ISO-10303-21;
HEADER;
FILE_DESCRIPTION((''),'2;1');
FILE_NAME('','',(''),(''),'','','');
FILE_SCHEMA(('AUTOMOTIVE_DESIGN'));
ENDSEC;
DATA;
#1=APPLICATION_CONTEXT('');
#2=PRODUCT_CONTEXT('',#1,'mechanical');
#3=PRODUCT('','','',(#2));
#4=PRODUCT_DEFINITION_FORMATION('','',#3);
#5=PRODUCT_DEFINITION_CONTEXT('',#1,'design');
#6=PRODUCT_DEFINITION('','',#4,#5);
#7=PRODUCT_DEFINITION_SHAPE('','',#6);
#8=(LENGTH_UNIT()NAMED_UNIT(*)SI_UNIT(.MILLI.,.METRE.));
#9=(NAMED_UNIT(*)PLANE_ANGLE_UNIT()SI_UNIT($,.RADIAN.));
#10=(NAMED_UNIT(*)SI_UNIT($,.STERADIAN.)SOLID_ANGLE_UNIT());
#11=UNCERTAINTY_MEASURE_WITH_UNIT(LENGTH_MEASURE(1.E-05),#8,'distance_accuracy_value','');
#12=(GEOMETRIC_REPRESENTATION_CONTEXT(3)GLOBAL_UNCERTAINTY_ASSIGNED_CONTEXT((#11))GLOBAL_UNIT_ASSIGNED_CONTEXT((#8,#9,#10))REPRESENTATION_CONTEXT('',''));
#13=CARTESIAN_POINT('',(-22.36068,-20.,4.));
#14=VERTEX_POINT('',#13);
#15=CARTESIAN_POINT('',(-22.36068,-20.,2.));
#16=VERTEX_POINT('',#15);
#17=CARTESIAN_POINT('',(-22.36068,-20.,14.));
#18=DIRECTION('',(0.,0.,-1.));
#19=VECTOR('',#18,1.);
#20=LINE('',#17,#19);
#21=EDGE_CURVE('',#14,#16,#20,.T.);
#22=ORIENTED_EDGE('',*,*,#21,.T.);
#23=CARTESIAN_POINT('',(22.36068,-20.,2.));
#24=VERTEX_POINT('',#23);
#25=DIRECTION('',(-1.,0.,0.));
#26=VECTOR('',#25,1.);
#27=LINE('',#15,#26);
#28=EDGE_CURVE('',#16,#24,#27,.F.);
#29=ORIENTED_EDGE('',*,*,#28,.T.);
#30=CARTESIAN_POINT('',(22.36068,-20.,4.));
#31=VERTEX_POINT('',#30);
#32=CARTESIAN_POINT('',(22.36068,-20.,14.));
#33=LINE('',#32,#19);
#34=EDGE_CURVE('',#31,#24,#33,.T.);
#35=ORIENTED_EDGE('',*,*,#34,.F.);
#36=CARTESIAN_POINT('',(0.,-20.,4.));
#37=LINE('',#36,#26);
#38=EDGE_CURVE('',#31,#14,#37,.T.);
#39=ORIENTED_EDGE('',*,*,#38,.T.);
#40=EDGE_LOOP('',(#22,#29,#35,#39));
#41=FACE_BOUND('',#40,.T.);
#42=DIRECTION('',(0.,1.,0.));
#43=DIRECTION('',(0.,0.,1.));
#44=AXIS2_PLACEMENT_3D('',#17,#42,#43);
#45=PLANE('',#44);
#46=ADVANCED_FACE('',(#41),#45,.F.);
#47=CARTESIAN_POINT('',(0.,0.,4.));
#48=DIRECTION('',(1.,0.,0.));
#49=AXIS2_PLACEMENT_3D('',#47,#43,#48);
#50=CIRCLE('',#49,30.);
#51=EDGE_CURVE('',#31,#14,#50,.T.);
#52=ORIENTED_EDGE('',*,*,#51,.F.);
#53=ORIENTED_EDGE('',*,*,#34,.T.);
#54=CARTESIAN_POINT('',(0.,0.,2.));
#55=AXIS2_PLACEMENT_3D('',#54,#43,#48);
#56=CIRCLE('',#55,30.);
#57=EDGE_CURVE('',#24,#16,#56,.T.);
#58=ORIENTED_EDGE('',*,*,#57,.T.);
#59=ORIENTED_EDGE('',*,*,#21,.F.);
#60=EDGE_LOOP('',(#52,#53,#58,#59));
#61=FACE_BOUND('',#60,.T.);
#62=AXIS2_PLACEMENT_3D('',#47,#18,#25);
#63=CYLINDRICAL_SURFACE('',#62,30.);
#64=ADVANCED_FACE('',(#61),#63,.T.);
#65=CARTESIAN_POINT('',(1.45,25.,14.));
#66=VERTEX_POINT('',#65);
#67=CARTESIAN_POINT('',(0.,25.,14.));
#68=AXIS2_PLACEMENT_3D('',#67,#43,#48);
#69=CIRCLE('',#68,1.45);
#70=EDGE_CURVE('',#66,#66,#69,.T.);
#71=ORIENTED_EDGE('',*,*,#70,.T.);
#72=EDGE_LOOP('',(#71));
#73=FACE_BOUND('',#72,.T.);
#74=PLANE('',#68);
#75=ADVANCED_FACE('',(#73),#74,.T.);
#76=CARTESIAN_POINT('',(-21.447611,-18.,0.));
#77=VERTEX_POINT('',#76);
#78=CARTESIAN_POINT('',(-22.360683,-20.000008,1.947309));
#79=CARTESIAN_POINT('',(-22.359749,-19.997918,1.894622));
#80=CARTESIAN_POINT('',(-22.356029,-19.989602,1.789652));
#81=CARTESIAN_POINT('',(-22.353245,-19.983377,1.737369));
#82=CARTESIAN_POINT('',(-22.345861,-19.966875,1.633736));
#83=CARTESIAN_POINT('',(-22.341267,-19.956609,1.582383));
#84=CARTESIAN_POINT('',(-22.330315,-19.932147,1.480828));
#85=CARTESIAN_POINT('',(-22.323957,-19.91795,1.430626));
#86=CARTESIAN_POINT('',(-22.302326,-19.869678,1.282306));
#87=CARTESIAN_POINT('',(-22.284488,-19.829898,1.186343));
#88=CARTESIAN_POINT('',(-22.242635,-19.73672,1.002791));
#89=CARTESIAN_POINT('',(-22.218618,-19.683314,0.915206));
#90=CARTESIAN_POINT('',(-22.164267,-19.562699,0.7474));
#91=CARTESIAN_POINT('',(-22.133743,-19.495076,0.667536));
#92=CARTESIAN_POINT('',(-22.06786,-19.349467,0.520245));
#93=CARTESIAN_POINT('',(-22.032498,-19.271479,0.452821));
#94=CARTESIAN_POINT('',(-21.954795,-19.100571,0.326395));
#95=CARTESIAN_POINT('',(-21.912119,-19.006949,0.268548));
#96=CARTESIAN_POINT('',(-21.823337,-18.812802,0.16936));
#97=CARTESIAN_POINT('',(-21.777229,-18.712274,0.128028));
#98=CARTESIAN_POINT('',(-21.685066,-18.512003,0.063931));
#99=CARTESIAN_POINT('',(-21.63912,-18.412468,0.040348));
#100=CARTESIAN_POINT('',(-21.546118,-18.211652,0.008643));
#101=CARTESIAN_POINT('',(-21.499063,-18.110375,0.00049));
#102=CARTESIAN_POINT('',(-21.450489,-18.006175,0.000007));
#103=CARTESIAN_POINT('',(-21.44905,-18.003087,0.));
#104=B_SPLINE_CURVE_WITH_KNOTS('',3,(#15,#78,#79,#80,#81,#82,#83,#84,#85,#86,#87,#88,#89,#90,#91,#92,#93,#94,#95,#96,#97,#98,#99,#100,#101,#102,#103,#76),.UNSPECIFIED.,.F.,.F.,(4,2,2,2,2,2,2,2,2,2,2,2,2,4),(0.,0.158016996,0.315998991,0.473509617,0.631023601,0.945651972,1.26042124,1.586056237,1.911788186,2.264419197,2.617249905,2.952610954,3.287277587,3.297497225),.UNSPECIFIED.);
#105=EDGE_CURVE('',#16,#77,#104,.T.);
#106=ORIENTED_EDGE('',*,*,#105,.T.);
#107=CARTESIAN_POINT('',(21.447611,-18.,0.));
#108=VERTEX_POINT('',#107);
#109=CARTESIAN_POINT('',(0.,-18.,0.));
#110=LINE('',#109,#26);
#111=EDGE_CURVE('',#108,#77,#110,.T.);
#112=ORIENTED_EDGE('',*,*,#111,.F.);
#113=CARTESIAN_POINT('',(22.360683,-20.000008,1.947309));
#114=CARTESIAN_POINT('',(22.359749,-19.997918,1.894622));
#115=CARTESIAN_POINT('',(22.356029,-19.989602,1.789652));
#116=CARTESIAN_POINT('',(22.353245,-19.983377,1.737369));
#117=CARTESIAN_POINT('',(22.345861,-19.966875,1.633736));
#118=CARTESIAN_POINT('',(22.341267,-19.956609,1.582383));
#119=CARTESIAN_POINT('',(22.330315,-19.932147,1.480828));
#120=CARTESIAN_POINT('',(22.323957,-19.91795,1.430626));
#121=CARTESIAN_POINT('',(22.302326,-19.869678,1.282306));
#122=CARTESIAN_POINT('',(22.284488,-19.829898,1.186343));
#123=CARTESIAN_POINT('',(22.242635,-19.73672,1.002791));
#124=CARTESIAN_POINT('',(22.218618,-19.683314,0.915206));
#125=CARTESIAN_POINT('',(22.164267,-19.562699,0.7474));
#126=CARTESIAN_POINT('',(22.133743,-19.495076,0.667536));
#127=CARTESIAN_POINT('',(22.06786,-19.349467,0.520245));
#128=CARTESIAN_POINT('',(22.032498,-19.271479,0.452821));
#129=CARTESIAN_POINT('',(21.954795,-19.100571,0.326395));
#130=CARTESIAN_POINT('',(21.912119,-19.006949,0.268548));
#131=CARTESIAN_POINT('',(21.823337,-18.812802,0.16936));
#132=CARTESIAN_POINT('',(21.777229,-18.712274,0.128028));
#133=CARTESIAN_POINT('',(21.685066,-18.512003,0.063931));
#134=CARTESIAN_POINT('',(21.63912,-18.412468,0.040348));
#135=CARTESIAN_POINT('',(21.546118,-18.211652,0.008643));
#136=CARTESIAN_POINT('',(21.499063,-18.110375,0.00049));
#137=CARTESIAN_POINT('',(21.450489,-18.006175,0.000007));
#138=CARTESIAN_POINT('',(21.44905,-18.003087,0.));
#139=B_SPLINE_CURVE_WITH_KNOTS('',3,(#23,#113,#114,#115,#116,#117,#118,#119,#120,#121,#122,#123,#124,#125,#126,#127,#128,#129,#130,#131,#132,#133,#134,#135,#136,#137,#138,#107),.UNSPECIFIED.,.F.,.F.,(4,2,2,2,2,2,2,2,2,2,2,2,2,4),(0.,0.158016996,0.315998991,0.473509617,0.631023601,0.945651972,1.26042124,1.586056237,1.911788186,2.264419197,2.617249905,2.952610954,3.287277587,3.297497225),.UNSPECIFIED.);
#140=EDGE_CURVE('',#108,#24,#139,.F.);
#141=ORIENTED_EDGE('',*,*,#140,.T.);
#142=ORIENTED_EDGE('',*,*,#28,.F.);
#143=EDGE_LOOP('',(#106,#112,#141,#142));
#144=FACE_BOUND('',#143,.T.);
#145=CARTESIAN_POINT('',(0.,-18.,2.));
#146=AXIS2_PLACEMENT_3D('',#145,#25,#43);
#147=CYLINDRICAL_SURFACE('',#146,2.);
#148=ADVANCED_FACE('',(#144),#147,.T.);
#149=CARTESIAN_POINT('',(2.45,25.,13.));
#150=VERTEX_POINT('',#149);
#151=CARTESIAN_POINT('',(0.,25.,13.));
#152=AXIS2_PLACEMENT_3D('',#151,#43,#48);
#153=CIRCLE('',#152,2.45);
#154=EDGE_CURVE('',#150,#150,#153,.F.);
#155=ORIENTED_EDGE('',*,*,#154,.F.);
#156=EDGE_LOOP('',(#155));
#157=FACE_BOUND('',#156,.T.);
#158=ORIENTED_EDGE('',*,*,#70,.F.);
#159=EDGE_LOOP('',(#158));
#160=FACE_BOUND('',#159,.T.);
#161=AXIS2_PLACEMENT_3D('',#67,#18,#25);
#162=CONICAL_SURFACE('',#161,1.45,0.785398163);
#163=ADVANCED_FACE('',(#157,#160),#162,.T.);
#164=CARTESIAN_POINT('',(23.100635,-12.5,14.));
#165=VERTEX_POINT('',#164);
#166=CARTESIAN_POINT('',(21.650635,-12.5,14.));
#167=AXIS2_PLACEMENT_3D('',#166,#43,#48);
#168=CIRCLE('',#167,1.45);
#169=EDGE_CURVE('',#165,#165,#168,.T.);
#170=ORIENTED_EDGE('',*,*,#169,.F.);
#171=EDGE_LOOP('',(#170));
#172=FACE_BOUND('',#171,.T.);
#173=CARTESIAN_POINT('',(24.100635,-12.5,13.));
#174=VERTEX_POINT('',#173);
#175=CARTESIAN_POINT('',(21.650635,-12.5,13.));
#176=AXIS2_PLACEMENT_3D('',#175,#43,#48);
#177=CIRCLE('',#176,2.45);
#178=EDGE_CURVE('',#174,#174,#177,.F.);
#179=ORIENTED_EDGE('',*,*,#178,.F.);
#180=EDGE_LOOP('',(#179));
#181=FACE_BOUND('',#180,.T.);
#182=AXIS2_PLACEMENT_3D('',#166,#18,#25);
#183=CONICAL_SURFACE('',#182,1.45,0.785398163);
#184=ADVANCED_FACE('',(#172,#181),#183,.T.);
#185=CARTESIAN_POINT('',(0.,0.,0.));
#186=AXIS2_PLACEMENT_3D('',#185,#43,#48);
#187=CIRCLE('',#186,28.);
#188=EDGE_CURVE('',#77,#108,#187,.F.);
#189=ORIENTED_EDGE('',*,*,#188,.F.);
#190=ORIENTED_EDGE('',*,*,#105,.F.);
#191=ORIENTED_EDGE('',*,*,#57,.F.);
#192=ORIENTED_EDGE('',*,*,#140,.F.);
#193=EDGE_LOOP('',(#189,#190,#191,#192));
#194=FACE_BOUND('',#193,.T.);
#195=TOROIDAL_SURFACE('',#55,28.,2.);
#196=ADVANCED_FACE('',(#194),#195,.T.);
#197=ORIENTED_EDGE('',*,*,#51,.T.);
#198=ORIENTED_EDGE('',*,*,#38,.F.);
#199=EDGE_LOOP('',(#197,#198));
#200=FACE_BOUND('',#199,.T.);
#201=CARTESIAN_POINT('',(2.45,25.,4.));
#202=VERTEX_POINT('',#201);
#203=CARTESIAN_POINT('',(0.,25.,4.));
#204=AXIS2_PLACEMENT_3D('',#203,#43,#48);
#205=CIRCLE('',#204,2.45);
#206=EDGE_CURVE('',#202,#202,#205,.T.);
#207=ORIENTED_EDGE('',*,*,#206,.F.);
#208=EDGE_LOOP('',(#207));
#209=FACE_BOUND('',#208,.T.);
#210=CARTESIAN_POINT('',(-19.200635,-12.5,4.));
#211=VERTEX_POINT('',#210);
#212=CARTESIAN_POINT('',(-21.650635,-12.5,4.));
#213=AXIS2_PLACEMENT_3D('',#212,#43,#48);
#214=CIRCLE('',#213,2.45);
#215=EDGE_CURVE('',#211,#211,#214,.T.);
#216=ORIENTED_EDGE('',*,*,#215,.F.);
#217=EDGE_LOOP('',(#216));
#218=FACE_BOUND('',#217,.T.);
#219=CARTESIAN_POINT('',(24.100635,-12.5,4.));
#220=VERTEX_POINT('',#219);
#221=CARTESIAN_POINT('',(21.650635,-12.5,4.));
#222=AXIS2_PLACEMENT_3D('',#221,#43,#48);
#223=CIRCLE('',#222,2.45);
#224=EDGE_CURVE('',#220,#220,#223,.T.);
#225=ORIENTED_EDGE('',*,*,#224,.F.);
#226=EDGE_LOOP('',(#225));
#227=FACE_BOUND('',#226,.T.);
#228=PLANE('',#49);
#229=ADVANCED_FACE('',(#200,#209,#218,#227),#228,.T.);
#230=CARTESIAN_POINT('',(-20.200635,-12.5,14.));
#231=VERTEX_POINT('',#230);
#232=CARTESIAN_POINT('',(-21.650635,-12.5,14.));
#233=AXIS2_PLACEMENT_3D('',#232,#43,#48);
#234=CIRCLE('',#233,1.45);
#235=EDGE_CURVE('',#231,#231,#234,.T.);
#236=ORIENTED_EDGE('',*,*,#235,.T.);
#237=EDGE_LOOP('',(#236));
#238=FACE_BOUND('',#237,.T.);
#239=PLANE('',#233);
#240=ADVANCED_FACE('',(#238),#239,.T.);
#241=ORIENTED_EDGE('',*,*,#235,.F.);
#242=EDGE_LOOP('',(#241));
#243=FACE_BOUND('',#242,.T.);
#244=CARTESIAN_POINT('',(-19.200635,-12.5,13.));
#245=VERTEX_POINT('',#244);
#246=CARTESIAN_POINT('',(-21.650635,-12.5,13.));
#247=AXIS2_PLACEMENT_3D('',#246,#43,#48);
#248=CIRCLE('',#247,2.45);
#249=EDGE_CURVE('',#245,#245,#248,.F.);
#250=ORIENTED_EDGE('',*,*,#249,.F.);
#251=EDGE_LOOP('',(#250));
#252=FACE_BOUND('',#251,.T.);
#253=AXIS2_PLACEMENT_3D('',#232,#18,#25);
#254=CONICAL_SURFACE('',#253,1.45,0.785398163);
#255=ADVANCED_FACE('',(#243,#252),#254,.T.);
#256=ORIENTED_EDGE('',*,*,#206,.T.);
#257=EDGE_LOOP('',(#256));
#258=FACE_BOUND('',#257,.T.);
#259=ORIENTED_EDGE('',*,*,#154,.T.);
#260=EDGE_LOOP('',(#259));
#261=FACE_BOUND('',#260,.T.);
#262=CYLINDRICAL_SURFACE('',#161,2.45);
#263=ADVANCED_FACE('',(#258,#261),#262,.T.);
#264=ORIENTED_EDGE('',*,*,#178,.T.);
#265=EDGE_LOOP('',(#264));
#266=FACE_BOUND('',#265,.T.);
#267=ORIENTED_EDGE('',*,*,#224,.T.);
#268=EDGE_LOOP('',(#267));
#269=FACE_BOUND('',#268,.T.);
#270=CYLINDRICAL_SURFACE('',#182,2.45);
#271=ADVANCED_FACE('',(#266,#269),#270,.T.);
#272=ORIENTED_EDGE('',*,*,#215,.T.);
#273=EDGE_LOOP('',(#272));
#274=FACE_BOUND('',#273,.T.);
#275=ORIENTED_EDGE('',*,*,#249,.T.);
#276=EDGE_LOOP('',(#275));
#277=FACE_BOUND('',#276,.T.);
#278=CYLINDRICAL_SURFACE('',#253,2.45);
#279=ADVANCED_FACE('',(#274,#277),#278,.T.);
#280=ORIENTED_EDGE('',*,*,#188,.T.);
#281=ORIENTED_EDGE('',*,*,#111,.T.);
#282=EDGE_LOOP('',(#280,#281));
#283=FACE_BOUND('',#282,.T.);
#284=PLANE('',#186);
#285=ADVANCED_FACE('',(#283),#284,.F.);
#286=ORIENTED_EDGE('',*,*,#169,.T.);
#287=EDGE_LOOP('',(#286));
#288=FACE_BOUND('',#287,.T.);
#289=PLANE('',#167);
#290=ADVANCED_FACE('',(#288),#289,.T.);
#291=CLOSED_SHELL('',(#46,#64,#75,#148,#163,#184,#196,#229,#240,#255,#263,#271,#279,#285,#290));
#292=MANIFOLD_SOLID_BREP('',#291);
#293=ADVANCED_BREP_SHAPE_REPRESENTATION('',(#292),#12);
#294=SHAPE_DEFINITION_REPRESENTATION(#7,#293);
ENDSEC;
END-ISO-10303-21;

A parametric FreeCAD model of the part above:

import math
import FreeCAD as App
import Part
import Sketcher
from FreeCAD import Vector
Q = App.Units.Quantity


def edges_at(feature, points):
    """Names of the edges that pass closest to the given points."""
    edges = feature.Shape.Edges
    near = lambda p: min(range(len(edges)), key=lambda i: edges[i].distToShape(Part.Vertex(*p))[0])
    return sorted({f"Edge{near(p) + 1}" for p in points})

doc = App.newDocument("Part")
body = doc.addObject("PartDesign::Body", "Body")

sketch1 = body.newObject("Sketcher::SketchObject", "Sketch")
sketch1.AttachmentSupport = (doc.getObject("XY_Plane"), [""])
sketch1.MapMode = "FlatFace"
sketch1.addGeometry(Part.Circle(Vector(0, 0, 0), Vector(0, 0, 1), 30), False)
sketch1.addConstraint(Sketcher.Constraint("Coincident", 0, 3, -1, 1))
sketch1.addConstraint(Sketcher.Constraint("Diameter", 0, Q("60 mm")))
pad1 = body.newObject("PartDesign::Pad", "Pad")
pad1.Profile = sketch1
pad1.Length = 4

sketch2 = body.newObject("Sketcher::SketchObject", "Sketch001")
sketch2.AttachmentSupport = (doc.getObject("XY_Plane"), [""])
sketch2.MapMode = "FlatFace"
sketch2.AttachmentOffset = App.Placement(Vector(0, 0, 4), App.Rotation())
sketch2.addGeometry(Part.Circle(Vector(0, 25, 0), Vector(0, 0, 1), 2.5), False)
sketch2.addGeometry(Part.Circle(Vector(21.7, -12.5, 0), Vector(0, 0, 1), 2.5), False)
sketch2.addGeometry(Part.Circle(Vector(-21.7, -12.5, 0), Vector(0, 0, 1), 2.5), False)
sketch2.addConstraint(Sketcher.Constraint("Equal", 0, 1))
sketch2.addConstraint(Sketcher.Constraint("Equal", 1, 2))
sketch2.addConstraint(Sketcher.Constraint("Symmetric", 1, 3, 2, 3, -2))
sketch2.addConstraint(Sketcher.Constraint("PointOnObject", 0, 3, -2))
sketch2.addConstraint(Sketcher.Constraint("Diameter", 0, Q("4.9 mm")))
sketch2.addConstraint(Sketcher.Constraint("DistanceY", -1, 1, 0, 3, Q("25 mm")))
sketch2.addConstraint(Sketcher.Constraint("DistanceY", 1, 3, -1, 1, Q("12.5 mm")))
sketch2.addConstraint(Sketcher.Constraint("DistanceX", 2, 3, 1, 3, Q("43.30127 mm")))
pad2 = body.newObject("PartDesign::Pad", "Pad001")
pad2.Profile = sketch2
pad2.Length = 10

sketch3 = body.newObject("Sketcher::SketchObject", "Sketch002")
sketch3.AttachmentSupport = (doc.getObject("XY_Plane"), [""])
sketch3.MapMode = "FlatFace"
sketch3.addGeometry(Part.LineSegment(Vector(-22, -20, 0), Vector(22, -20, 0)), False)
sketch3.addGeometry(Part.ArcOfCircle(Part.Circle(Vector(0, 0, 0), Vector(0, 0, 1), 30), math.radians(-138), math.radians(-42)), False)
sketch3.addConstraint(Sketcher.Constraint("Coincident", 0, 1, 1, 1))
sketch3.addConstraint(Sketcher.Constraint("Coincident", 1, 2, 0, 2))
sketch3.addConstraint(Sketcher.Constraint("Horizontal", 0))
sketch3.addConstraint(Sketcher.Constraint("Coincident", 1, 3, -1, 1))
sketch3.addConstraint(Sketcher.Constraint("Radius", 1, Q("30 mm")))
sketch3.addConstraint(Sketcher.Constraint("DistanceY", 0, 1, -1, 1, Q("20 mm")))
pocket1 = body.newObject("PartDesign::Pocket", "Pocket")
pocket1.Profile = sketch3
pocket1.Type = "ThroughAll"
pocket1.Midplane = True
doc.recompute()

fillet = body.newObject("PartDesign::Fillet", "Fillet")
fillet.Base = (pocket1, edges_at(pocket1, [(0, 30, 0), (0, -20, 0)]))
fillet.Radius = 2
doc.recompute()

chamfer = body.newObject("PartDesign::Chamfer", "Chamfer")
chamfer.Base = (fillet, edges_at(fillet, [(-24.101, -12.5, 14), (-2.45, 25, 14), (19.201, -12.5, 14)]))
chamfer.Size = 1

doc.recompute()
